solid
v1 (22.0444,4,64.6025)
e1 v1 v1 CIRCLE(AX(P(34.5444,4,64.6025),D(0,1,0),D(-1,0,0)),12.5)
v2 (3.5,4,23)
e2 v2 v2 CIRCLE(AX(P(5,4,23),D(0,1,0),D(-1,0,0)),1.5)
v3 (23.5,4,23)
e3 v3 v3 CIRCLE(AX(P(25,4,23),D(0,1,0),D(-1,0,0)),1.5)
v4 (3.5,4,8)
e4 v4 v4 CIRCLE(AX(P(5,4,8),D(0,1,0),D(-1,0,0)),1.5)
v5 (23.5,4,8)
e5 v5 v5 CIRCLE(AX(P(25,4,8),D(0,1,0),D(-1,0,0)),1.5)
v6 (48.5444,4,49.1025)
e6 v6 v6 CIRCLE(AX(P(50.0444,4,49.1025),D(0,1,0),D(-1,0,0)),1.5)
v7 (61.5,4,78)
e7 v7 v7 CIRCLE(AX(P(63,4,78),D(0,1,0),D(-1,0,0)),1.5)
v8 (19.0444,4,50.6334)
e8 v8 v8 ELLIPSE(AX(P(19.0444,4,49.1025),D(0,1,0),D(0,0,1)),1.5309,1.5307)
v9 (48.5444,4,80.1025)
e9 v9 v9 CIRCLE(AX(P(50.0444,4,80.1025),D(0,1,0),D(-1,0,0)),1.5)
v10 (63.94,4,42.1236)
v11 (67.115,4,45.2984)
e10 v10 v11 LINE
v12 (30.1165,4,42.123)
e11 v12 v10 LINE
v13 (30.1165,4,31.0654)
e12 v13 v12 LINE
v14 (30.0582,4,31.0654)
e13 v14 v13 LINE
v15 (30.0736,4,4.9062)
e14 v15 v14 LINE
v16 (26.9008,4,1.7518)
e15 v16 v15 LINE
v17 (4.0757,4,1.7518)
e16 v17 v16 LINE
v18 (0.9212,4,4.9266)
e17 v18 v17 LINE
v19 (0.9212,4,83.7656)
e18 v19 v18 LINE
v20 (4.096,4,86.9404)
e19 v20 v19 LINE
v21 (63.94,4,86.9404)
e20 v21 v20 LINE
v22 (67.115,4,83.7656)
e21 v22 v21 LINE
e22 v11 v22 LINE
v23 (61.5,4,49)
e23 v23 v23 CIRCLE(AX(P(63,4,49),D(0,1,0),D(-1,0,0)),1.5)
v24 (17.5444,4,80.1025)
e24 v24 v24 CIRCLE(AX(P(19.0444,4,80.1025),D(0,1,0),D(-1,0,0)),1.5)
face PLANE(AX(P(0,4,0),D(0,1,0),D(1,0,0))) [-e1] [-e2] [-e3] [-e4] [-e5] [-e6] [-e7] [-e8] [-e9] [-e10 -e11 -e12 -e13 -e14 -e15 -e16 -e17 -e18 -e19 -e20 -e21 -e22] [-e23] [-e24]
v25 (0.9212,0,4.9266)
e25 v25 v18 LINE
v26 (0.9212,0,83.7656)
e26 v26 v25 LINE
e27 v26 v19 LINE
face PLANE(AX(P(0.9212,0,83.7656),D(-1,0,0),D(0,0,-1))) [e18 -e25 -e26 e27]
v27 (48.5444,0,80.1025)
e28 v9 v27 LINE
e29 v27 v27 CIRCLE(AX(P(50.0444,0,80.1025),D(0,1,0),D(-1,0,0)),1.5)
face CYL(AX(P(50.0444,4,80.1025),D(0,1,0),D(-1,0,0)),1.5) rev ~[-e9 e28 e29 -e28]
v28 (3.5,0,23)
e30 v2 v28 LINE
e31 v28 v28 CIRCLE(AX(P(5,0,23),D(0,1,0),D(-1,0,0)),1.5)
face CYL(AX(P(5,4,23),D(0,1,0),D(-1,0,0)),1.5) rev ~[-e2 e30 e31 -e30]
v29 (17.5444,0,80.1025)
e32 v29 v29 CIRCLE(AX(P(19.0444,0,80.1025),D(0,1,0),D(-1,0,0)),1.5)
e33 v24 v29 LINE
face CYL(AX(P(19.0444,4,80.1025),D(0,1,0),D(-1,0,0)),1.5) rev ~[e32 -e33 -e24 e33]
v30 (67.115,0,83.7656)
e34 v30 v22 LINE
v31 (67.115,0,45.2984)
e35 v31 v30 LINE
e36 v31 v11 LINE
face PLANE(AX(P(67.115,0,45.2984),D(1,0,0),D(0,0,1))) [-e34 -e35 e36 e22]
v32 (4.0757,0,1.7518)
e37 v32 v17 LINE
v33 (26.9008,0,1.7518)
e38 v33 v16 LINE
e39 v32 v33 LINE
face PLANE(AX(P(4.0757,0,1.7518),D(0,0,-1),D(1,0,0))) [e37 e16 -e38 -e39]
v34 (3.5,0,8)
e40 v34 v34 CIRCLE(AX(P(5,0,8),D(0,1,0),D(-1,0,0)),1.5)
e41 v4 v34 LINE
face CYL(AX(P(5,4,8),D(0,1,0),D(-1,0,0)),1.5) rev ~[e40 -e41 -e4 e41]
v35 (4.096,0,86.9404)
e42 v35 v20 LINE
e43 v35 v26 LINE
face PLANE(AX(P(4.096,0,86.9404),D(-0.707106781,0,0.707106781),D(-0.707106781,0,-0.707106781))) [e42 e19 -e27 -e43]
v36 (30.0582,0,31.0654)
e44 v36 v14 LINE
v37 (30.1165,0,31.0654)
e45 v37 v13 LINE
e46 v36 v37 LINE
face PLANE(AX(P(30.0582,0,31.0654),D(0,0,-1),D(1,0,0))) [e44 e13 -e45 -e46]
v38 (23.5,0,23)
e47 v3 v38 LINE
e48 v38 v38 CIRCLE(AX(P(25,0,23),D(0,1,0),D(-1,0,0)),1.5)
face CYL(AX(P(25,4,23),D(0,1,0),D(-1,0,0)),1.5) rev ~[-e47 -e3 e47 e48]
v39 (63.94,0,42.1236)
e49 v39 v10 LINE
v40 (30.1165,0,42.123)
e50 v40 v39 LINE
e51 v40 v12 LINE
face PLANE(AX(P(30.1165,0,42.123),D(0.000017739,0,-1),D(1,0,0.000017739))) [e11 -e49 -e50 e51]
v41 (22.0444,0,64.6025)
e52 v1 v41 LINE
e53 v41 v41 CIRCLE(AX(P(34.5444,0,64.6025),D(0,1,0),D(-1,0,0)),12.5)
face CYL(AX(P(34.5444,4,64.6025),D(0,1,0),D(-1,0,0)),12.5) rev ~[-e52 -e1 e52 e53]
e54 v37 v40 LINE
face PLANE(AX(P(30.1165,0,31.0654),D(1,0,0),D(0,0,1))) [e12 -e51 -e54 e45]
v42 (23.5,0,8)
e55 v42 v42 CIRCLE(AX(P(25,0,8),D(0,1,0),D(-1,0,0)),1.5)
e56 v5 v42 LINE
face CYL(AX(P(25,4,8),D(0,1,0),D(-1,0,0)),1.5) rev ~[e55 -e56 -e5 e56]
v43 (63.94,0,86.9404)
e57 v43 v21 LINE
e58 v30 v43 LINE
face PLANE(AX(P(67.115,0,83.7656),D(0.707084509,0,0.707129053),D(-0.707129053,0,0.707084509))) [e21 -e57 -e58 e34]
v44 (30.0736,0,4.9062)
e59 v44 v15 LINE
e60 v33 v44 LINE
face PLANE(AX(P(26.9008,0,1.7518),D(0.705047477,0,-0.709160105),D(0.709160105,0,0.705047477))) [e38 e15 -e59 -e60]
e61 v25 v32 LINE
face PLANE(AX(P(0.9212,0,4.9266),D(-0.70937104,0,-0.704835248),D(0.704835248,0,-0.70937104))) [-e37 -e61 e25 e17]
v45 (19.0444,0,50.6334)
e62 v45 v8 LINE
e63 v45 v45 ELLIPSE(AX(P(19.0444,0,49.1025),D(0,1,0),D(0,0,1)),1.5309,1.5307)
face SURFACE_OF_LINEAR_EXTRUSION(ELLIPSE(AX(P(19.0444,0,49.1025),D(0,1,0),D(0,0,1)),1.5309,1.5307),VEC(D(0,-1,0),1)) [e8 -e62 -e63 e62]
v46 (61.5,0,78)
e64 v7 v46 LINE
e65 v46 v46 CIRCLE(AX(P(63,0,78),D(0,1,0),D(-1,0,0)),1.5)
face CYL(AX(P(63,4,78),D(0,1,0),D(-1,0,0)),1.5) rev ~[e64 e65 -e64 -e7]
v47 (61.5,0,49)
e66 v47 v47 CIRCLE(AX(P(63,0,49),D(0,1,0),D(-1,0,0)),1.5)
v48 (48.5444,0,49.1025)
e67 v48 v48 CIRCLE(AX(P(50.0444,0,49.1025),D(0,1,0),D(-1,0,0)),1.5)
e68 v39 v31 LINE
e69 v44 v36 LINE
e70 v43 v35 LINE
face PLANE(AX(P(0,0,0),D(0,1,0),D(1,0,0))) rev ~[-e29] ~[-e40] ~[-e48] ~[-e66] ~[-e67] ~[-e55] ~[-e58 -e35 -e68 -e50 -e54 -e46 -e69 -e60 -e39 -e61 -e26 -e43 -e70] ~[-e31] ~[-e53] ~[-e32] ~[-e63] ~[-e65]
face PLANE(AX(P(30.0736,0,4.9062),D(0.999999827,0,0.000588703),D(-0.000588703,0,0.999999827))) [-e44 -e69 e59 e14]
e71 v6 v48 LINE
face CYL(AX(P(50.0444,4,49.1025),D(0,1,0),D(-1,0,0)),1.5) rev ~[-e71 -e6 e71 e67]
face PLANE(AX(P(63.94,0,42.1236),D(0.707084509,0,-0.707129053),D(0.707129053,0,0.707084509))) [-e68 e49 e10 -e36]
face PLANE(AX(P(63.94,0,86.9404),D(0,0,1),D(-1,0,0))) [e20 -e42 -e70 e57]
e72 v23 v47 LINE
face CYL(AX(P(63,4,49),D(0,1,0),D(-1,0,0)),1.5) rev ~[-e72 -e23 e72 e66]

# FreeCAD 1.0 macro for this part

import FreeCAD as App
import Part
import Sketcher

V = App.Vector
Q = App.Units.Quantity


def add_polygon(sketch, points):
    """Adds a closed chain of lines whose ends are joined by coincident constraints."""
    first, n = sketch.GeometryCount, len(points)
    for a, b in zip(points, points[1:] + points[:1]):
        sketch.addGeometry(Part.LineSegment(App.Vector(*a, 0), App.Vector(*b, 0)), False)
    for i in range(n):
        sketch.addConstraint(Sketcher.Constraint("Coincident", first + i, 2, first + (i + 1) % n, 1))

doc = App.newDocument("Part")
body = doc.addObject("PartDesign::Body", "Body")

# Sketch on XZ plane
sketch1 = body.newObject("Sketcher::SketchObject", "Sketch")
sketch1.AttachmentSupport = (doc.getObject("XZ_Plane"), [""])
sketch1.MapMode = "FlatFace"
add_polygon(sketch1, [(30.0736, 4.9062), (26.9008, 1.7518), (4.0757, 1.7518), (0.9212, 4.9266), (0.9212, 83.7656), (4.096, 86.9404), (63.94, 86.9404), (67.115, 83.7656), (67.115, 45.2984), (63.94, 42.1236), (30.1165, 42.123), (30.1165, 31.0654), (30.0582, 31.0654)])  # lines 0-12
sketch1.addGeometry(Part.Ellipse(V(19.0444, 50.6334, 0), V(17.5137, 49.1025, 0), V(19.0444, 49.1025, 0)), False)  # 13
sketch1.addConstraint(Sketcher.Constraint("Block", 13))
sketch1.addConstraint(Sketcher.Constraint("Horizontal", 1))
sketch1.addConstraint(Sketcher.Constraint("Vertical", 3))
sketch1.addConstraint(Sketcher.Constraint("Horizontal", 5))
sketch1.addConstraint(Sketcher.Constraint("Vertical", 7))
sketch1.addConstraint(Sketcher.Constraint("Vertical", 10))
sketch1.addConstraint(Sketcher.Constraint("Horizontal", 11))
sketch1.addConstraint(Sketcher.Constraint("Perpendicular", 0, 2))
sketch1.addConstraint(Sketcher.Constraint("Perpendicular", 4, 6))
sketch1.addConstraint(Sketcher.Constraint("Perpendicular", 6, 8))
sketch1.addConstraint(Sketcher.Constraint("Horizontal", 3, 2, 6, 2))
sketch1.addConstraint(Sketcher.Constraint("Vertical", 5, 2, 8, 2))
sketch1.addConstraint(Sketcher.Constraint("Equal", 4, 6))
sketch1.addConstraint(Sketcher.Constraint("Angle", 9, Q("-179.999 deg")))
sketch1.addConstraint(Sketcher.Constraint("Distance", 6, Q("4.49 mm")))
sketch1.addConstraint(Sketcher.Constraint("DistanceX", 1, 2, 1, 1, Q("22.825 mm")))
sketch1.addConstraint(Sketcher.Constraint("DistanceX", 5, 1, 5, 2, Q("59.844 mm")))
sketch1.addConstraint(Sketcher.Constraint("DistanceY", 3, 1, 3, 2, Q("78.839 mm")))
sketch1.addConstraint(Sketcher.Constraint("DistanceX", -1, 1, 5, 2, Q("63.94 mm")))
sketch1.addConstraint(Sketcher.Constraint("Distance", 0, Q("4.474 mm")))
sketch1.addConstraint(Sketcher.Constraint("DistanceX", 11, 2, 11, 1, Q("0.0583 mm")))
sketch1.addConstraint(Sketcher.Constraint("DistanceY", 7, 2, 7, 1, Q("38.4672 mm")))
sketch1.addConstraint(Sketcher.Constraint("DistanceY", 10, 2, 10, 1, Q("11.0576 mm")))
sketch1.addConstraint(Sketcher.Constraint("DistanceY", -1, 1, 9, 2, Q("42.123 mm")))
sketch1.addConstraint(Sketcher.Constraint("DistanceX", 2, 2, 11, 2, Q("29.137 mm")))
sketch1.addConstraint(Sketcher.Constraint("DistanceX", 12, 2, 10, 2, Q("0.043 mm")))
sketch1.addConstraint(Sketcher.Constraint("DistanceX", 1, 2, 12, 2, Q("25.998 mm")))
pad1 = body.newObject("PartDesign::Pad", "Pad")
pad1.Profile = sketch1
pad1.Length = 4
pad1.Reversed = True

# Sketch on XZ plane
sketch2 = body.newObject("Sketcher::SketchObject", "Sketch001")
sketch2.AttachmentSupport = (doc.getObject("XZ_Plane"), [""])
sketch2.MapMode = "FlatFace"
sketch2.AttachmentOffset = App.Placement(V(0, 0, -4), App.Rotation())
sketch2.addGeometry(Part.Circle(V(50, 49.1, 0), V(0, 0, 1), 1.5), False)
sketch2.addGeometry(Part.Circle(V(50, 80.1, 0), V(0, 0, 1), 1.5), False)
sketch2.addGeometry(Part.Circle(V(19, 80.1, 0), V(0, 0, 1), 1.5), False)
sketch2.addGeometry(Part.Circle(V(34.5, 64.6, 0), V(0, 0, 1), 12.5), False)
sketch2.addGeometry(Part.Circle(V(5, 8, 0), V(0, 0, 1), 1.5), False)
sketch2.addGeometry(Part.Circle(V(25, 8, 0), V(0, 0, 1), 1.5), False)
sketch2.addGeometry(Part.Circle(V(5, 23, 0), V(0, 0, 1), 1.5), False)
sketch2.addGeometry(Part.Circle(V(25, 23, 0), V(0, 0, 1), 1.5), False)
sketch2.addGeometry(Part.Circle(V(63, 49, 0), V(0, 0, 1), 1.5), False)
sketch2.addGeometry(Part.Circle(V(63, 78, 0), V(0, 0, 1), 1.5), False)
sketch2.addConstraint(Sketcher.Constraint("Equal", 0, 1))
sketch2.addConstraint(Sketcher.Constraint("Equal", 1, 2))
sketch2.addConstraint(Sketcher.Constraint("Equal", 2, 4))
sketch2.addConstraint(Sketcher.Constraint("Equal", 4, 5))
sketch2.addConstraint(Sketcher.Constraint("Equal", 5, 6))
sketch2.addConstraint(Sketcher.Constraint("Equal", 6, 7))
sketch2.addConstraint(Sketcher.Constraint("Equal", 7, 8))
sketch2.addConstraint(Sketcher.Constraint("Equal", 8, 9))
sketch2.addConstraint(Sketcher.Constraint("Horizontal", 1, 3, 2, 3))
sketch2.addConstraint(Sketcher.Constraint("Horizontal", 4, 3, 5, 3))
sketch2.addConstraint(Sketcher.Constraint("Horizontal", 6, 3, 7, 3))
sketch2.addConstraint(Sketcher.Constraint("Vertical", 0, 3, 1, 3))
sketch2.addConstraint(Sketcher.Constraint("Vertical", 4, 3, 6, 3))
sketch2.addConstraint(Sketcher.Constraint("Vertical", 5, 3, 7, 3))
sketch2.addConstraint(Sketcher.Constraint("Vertical", 8, 3, 9, 3))
sketch2.addConstraint(Sketcher.Constraint("Diameter", 0, Q("3 mm")))
sketch2.addConstraint(Sketcher.Constraint("Diameter", 3, Q("25 mm")))
sketch2.addConstraint(Sketcher.Constraint("DistanceX", -1, 1, 5, 3, Q("25 mm")))
sketch2.addConstraint(Sketcher.Constraint("DistanceY", 0, 3, 1, 3, Q("31 mm")))
sketch2.addConstraint(Sketcher.Constraint("DistanceX", 2, 3, 1, 3, Q("31 mm")))
sketch2.addConstraint(Sketcher.Constraint("DistanceY", 4, 3, 6, 3, Q("15 mm")))
sketch2.addConstraint(Sketcher.Constraint("DistanceX", -1, 1, 4, 3, Q("5 mm")))
sketch2.addConstraint(Sketcher.Constraint("DistanceY", -1, 1, 4, 3, Q("8 mm")))
sketch2.addConstraint(Sketcher.Constraint("DistanceX", -1, 1, 8, 3, Q("63 mm")))
sketch2.addConstraint(Sketcher.Constraint("DistanceY", -1, 1, 8, 3, Q("49 mm")))
sketch2.addConstraint(Sketcher.Constraint("DistanceY", -1, 1, 9, 3, Q("78 mm")))
sketch2.addConstraint(Sketcher.Constraint("DistanceX", 3, 3, 1, 3, Q("15.5 mm")))
sketch2.addConstraint(Sketcher.Constraint("DistanceY", 3, 3, 1, 3, Q("15.5 mm")))
sketch2.addConstraint(Sketcher.Constraint("DistanceX", -1, 1, 0, 3, Q("50.0444 mm")))
sketch2.addConstraint(Sketcher.Constraint("DistanceY", -1, 1, 0, 3, Q("49.1025 mm")))
pocket1 = body.newObject("PartDesign::Pocket", "Pocket")
pocket1.Profile = sketch2
pocket1.Length = 28
pocket1.Reversed = True

doc.recompute()
